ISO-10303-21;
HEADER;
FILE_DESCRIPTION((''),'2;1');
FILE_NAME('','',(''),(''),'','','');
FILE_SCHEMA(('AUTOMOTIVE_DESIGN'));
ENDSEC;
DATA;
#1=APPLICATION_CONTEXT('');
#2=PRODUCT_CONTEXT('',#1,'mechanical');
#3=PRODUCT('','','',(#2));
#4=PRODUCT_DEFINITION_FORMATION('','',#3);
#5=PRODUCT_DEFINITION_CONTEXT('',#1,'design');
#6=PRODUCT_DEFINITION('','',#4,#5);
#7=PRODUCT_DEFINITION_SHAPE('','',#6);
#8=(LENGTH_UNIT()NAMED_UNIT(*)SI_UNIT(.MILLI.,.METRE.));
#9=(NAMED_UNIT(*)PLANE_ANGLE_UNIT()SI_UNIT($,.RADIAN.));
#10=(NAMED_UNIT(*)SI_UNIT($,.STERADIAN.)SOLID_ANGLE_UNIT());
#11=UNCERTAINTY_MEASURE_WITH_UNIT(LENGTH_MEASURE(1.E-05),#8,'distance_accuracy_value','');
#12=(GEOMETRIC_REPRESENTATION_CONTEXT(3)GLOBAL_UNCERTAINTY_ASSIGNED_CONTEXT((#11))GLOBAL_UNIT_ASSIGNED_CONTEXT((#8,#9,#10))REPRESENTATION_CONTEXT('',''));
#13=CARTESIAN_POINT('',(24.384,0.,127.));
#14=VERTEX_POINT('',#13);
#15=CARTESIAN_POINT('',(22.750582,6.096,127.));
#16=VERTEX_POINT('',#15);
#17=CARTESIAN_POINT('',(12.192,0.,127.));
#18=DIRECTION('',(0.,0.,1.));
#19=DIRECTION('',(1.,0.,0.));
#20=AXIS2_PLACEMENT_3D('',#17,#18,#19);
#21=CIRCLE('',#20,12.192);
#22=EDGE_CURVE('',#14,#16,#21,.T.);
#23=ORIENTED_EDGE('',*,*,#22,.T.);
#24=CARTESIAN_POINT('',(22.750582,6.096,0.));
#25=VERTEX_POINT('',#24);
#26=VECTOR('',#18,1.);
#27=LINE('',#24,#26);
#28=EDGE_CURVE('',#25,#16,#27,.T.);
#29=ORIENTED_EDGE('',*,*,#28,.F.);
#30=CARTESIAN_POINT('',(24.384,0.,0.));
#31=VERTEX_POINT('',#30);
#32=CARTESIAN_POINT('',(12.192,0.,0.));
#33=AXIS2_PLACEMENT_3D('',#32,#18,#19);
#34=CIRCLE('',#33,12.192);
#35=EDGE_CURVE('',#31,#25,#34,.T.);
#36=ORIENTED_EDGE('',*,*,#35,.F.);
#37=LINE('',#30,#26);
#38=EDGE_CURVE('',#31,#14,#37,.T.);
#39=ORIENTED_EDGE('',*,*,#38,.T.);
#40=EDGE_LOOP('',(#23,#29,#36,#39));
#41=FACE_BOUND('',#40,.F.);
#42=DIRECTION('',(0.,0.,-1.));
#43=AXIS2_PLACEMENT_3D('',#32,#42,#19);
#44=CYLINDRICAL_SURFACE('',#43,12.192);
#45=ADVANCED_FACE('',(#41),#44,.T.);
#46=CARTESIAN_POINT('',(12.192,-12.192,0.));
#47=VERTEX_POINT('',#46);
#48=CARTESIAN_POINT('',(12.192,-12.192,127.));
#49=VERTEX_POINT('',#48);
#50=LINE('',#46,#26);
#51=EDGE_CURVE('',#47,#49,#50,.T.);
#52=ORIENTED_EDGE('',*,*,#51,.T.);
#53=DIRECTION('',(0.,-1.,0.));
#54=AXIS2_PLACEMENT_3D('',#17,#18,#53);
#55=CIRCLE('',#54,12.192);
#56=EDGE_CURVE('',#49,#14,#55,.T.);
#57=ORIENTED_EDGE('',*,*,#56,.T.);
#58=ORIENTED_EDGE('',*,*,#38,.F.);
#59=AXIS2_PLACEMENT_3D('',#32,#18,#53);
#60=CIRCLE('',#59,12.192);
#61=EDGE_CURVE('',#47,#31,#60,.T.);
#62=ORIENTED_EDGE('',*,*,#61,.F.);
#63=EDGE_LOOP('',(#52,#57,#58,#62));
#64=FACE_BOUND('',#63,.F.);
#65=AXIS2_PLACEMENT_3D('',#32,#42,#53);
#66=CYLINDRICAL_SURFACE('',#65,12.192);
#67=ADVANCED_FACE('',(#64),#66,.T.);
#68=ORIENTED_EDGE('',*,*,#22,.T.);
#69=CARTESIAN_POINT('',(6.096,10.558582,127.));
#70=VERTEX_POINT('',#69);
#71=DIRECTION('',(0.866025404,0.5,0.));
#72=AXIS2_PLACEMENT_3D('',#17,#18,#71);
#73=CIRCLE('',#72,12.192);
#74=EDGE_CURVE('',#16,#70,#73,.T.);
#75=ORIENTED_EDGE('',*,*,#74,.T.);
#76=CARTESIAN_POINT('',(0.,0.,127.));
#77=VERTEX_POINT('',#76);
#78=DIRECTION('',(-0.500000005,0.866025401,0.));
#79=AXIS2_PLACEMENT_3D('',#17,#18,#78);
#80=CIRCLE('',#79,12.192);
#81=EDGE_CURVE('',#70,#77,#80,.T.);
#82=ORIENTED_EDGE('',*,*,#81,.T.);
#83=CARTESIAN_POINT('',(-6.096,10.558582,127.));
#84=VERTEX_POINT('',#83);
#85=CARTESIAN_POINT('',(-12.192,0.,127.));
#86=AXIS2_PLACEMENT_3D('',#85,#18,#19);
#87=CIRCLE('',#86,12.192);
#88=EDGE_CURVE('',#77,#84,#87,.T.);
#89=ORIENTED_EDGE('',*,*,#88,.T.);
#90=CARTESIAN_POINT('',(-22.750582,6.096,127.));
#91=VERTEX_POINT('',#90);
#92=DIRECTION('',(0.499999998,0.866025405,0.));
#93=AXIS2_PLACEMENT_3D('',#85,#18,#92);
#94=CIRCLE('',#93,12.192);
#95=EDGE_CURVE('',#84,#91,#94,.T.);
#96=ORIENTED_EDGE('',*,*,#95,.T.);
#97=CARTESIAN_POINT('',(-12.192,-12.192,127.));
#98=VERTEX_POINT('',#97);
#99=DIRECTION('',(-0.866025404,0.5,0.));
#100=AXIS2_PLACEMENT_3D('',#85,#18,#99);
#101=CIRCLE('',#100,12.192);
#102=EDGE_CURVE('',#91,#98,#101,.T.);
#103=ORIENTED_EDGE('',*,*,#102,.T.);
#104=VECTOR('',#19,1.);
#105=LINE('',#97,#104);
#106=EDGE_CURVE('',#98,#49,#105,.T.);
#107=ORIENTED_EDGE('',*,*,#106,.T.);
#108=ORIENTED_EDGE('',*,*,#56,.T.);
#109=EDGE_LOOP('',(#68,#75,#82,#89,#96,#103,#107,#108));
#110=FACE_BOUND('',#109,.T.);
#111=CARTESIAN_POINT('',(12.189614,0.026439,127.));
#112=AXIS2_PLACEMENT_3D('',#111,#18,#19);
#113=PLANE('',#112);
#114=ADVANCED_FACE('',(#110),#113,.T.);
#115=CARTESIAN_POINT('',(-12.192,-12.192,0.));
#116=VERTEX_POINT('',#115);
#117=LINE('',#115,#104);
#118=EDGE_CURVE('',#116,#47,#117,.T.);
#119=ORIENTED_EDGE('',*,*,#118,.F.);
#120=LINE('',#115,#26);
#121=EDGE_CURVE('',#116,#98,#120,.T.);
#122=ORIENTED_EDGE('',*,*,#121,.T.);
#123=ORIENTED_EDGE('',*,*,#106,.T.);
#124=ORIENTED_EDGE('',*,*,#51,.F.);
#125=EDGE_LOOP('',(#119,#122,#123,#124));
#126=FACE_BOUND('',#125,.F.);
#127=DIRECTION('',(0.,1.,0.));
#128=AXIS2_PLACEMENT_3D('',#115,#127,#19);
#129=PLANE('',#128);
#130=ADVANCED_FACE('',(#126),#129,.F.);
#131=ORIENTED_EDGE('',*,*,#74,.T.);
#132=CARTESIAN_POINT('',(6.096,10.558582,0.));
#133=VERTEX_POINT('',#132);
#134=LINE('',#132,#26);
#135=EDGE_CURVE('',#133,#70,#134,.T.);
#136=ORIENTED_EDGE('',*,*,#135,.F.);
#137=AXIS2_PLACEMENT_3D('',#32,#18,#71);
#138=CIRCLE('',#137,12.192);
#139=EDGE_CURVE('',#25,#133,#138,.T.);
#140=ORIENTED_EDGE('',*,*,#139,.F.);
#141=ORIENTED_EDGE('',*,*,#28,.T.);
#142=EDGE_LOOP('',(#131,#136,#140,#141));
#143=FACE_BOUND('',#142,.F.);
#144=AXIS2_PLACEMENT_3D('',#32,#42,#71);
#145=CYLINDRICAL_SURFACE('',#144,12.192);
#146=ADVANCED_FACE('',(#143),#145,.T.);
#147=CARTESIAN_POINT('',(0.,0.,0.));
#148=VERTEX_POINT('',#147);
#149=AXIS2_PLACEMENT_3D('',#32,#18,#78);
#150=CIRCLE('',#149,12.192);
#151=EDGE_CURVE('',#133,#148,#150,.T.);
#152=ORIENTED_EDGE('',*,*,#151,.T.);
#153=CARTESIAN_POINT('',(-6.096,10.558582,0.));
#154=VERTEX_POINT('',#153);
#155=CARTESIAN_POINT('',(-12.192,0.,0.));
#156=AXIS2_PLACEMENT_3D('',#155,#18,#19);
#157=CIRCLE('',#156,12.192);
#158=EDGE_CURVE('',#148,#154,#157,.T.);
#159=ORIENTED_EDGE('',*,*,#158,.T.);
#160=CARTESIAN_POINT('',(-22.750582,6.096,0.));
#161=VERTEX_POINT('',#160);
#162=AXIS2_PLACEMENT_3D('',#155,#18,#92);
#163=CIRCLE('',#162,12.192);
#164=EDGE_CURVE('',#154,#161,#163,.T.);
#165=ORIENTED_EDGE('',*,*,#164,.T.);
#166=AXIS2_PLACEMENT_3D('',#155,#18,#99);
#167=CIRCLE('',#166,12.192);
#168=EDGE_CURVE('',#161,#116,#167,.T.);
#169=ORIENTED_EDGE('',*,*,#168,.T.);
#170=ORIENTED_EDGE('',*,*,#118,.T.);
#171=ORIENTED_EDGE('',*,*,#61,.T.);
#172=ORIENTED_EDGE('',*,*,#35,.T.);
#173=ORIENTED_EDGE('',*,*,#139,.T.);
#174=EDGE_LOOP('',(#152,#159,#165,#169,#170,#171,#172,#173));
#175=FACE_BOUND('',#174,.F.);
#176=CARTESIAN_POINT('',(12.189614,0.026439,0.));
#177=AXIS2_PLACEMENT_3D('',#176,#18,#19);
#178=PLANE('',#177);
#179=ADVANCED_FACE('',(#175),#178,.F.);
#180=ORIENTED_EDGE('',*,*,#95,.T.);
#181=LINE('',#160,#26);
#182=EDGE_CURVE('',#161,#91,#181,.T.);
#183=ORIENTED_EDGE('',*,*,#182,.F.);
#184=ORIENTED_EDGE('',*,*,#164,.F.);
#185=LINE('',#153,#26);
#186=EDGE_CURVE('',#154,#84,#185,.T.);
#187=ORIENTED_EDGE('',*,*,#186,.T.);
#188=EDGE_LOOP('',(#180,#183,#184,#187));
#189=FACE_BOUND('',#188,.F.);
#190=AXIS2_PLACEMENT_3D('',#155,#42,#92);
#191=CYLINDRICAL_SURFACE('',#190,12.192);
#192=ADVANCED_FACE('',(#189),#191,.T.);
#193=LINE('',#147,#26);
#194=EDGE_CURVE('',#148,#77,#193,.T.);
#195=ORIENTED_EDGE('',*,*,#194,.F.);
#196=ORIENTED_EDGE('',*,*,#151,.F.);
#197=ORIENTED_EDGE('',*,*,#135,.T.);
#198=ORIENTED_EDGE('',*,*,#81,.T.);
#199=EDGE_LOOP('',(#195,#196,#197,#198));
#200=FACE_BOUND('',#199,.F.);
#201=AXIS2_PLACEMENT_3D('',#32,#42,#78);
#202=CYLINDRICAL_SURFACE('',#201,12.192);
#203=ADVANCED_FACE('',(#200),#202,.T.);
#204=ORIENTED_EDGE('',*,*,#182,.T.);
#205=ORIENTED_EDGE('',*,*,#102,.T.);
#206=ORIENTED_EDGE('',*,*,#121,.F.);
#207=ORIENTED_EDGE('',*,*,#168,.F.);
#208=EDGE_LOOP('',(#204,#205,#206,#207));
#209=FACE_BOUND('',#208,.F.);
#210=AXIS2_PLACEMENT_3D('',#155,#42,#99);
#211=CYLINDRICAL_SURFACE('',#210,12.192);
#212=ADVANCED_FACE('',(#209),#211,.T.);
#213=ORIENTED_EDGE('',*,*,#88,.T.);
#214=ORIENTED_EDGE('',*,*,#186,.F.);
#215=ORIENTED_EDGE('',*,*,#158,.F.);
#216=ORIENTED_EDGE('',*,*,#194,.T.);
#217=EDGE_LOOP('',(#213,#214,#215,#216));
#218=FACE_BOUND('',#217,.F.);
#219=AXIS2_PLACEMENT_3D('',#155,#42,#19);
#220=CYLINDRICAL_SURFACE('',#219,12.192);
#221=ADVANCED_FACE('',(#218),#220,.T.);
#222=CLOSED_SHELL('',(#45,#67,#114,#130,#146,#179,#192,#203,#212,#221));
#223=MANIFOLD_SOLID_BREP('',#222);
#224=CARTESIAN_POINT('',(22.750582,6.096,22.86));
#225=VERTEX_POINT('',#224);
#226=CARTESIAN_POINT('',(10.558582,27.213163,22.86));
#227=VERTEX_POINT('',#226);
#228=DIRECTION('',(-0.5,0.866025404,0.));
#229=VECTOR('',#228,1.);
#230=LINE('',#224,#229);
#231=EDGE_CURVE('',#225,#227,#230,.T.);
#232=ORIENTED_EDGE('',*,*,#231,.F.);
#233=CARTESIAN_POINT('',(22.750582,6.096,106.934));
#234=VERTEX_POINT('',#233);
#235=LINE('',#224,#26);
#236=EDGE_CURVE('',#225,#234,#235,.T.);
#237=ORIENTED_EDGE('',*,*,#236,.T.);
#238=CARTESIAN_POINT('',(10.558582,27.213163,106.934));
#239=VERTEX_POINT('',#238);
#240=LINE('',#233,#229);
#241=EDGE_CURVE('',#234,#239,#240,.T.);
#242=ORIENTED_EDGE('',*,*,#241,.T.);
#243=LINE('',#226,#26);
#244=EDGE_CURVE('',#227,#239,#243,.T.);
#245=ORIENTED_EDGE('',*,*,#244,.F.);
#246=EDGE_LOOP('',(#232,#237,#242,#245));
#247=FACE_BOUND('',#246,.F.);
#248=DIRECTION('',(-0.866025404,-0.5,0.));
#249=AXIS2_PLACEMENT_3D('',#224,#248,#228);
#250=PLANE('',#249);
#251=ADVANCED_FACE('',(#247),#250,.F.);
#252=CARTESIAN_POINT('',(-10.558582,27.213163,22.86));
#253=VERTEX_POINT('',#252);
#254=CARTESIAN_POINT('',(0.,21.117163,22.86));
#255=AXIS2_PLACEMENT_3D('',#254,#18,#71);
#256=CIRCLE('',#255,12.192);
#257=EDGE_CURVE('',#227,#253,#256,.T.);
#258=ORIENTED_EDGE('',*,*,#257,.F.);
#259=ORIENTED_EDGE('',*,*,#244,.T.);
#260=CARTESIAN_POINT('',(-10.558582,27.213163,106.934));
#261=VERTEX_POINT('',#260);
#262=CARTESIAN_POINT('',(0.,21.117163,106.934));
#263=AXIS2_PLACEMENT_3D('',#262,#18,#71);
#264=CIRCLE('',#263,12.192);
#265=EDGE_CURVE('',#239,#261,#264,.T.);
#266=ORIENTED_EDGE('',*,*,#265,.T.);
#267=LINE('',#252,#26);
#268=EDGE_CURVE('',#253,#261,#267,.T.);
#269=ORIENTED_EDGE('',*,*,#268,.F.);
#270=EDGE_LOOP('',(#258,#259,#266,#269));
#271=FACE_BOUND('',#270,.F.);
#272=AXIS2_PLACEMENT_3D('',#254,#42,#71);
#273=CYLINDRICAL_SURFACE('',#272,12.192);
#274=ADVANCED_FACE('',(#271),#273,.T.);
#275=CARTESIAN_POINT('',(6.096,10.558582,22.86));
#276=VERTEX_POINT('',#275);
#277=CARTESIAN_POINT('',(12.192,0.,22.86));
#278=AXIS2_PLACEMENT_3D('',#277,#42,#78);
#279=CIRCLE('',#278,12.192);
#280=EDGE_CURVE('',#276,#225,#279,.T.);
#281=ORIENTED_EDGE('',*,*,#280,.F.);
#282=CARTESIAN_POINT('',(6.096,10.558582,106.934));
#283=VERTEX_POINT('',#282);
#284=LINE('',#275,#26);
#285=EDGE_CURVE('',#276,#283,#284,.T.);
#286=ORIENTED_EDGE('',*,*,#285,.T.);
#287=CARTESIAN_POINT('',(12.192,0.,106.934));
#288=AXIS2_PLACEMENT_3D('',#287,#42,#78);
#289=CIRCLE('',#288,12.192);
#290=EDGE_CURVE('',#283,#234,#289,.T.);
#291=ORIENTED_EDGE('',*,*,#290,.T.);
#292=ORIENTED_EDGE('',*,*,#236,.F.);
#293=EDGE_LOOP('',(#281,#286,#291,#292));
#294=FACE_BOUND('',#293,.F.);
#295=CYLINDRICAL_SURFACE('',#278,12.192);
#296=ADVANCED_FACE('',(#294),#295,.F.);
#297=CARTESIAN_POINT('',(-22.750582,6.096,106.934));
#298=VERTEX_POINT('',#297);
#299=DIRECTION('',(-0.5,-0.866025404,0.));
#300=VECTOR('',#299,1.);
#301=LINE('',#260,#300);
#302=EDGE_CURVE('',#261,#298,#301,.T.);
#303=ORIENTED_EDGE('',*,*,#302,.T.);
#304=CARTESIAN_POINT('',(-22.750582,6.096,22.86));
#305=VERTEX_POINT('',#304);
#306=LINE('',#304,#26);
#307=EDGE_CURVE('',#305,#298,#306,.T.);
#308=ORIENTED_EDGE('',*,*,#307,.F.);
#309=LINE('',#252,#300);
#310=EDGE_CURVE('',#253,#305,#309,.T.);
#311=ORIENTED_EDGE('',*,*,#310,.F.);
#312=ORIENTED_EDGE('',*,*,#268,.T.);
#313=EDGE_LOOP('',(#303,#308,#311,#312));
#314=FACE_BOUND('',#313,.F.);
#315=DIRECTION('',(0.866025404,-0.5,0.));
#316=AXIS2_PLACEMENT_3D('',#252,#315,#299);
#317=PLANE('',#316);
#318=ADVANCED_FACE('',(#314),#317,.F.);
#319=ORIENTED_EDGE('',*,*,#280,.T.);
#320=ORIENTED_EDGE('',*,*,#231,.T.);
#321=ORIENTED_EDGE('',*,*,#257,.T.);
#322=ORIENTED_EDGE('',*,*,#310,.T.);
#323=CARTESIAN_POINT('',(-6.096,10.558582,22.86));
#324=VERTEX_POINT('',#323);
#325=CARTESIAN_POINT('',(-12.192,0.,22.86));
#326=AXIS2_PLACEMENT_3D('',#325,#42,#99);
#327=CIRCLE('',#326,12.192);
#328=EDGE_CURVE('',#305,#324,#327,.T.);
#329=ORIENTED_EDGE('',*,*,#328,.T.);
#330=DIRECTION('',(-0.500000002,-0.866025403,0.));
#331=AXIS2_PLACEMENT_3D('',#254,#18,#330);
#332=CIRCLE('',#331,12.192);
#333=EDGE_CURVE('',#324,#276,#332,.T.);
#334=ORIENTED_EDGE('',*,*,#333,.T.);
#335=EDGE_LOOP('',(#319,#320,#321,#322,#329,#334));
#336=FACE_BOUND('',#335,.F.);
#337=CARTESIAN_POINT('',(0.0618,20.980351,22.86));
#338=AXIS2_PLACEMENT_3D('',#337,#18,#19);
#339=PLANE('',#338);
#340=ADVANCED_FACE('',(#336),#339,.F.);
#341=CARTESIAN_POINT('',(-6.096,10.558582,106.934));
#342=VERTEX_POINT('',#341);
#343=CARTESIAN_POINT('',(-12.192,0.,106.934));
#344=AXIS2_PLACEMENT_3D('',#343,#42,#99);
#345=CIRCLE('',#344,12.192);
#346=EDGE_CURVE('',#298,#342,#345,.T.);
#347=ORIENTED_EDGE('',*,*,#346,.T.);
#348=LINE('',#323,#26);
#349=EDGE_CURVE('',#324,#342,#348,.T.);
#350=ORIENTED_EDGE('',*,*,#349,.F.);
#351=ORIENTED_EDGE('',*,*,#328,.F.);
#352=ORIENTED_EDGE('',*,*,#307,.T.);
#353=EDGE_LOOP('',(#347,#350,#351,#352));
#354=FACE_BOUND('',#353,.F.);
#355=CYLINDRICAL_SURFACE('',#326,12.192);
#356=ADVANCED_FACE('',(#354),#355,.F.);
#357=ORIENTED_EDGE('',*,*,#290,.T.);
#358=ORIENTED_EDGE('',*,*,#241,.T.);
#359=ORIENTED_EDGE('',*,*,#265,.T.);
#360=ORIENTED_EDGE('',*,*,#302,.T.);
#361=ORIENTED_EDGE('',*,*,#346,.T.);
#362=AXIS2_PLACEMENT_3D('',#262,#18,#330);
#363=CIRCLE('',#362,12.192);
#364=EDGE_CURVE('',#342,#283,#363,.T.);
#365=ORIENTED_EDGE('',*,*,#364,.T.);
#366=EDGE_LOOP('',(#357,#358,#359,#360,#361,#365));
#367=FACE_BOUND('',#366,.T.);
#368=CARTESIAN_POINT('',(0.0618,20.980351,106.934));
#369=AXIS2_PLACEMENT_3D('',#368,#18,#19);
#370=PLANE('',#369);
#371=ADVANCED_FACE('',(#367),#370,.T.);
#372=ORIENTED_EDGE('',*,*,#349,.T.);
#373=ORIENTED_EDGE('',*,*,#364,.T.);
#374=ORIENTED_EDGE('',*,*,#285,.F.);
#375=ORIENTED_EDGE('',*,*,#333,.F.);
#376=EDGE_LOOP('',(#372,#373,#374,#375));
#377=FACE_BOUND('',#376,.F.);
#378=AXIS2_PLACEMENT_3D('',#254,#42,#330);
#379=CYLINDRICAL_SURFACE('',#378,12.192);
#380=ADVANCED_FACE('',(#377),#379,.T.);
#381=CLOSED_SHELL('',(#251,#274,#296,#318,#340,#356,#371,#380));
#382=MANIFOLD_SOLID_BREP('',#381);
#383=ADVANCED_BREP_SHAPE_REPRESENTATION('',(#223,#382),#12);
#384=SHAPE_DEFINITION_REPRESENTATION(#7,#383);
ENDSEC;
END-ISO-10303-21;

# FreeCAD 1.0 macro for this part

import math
import FreeCAD as App
import Part
import Sketcher
from FreeCAD import Vector
Q = App.Units.Quantity

doc = App.newDocument("Part")
body = doc.addObject("PartDesign::Body", "Body")

# Sketch on XY plane
sketch1 = body.newObject("Sketcher::SketchObject", "Sketch")
sketch1.AttachmentSupport = (doc.getObject("XY_Plane"), [""])
sketch1.MapMode = "FlatFace"
sketch1.addGeometry(Part.ArcOfCircle(Part.Circle(Vector(12.192, 0, 0), Vector(0, 0, 1), 12.192), math.radians(120), math.radians(180)), False)
sketch1.addGeometry(Part.ArcOfCircle(Part.Circle(Vector(-12.192, 0, 0), Vector(0, 0, 1), 12.192), math.radians(0), math.radians(60)), False)
sketch1.addGeometry(Part.ArcOfCircle(Part.Circle(Vector(-12.192, 0, 0), Vector(0, 0, 1), 12.192), math.radians(60), math.radians(150)), False)
sketch1.addGeometry(Part.ArcOfCircle(Part.Circle(Vector(-12.192, 0, 0), Vector(0, 0, 1), 12.192), math.radians(150), math.radians(270)), False)
sketch1.addGeometry(Part.LineSegment(Vector(-12.192, -12.192, 0), Vector(12.192, -12.192, 0)), False)
sketch1.addGeometry(Part.ArcOfCircle(Part.Circle(Vector(12.192, 0, 0), Vector(0, 0, 1), 12.192), math.radians(-90), math.radians(0)), False)
sketch1.addGeometry(Part.ArcOfCircle(Part.Circle(Vector(12.192, 0, 0), Vector(0, 0, 1), 12.192), math.radians(0), math.radians(30)), False)
sketch1.addGeometry(Part.ArcOfCircle(Part.Circle(Vector(12.192, 0, 0), Vector(0, 0, 1), 12.192), math.radians(30), math.radians(120)), False)
sketch1.addConstraint(Sketcher.Constraint("Tangent", 0, 2, 1, 1))
sketch1.addConstraint(Sketcher.Constraint("Tangent", 1, 2, 2, 1))
sketch1.addConstraint(Sketcher.Constraint("Tangent", 2, 2, 3, 1))
sketch1.addConstraint(Sketcher.Constraint("Tangent", 3, 2, 4, 1))
sketch1.addConstraint(Sketcher.Constraint("Tangent", 4, 2, 5, 1))
sketch1.addConstraint(Sketcher.Constraint("Tangent", 5, 2, 6, 1))
sketch1.addConstraint(Sketcher.Constraint("Tangent", 6, 2, 7, 1))
sketch1.addConstraint(Sketcher.Constraint("Tangent", 7, 2, 0, 1))
sketch1.addConstraint(Sketcher.Constraint("Horizontal", 4))
sketch1.addConstraint(Sketcher.Constraint("Coincident", 0, 2, -1, 1))
sketch1.addConstraint(Sketcher.Constraint("Coincident", 3, 3, 1, 3))
sketch1.addConstraint(Sketcher.Constraint("Coincident", 5, 3, 0, 3))
sketch1.addConstraint(Sketcher.Constraint("Equal", 0, 1))
sketch1.addConstraint(Sketcher.Constraint("Equal", 3, 5))
sketch1.addConstraint(Sketcher.Constraint("PointOnObject", 5, 2, -1))
sketch1.addConstraint(Sketcher.Constraint("Horizontal", 2, 2, 6, 2))
sketch1.addConstraint(Sketcher.Constraint("Horizontal", 1, 2, 7, 2))
sketch1.addConstraint(Sketcher.Constraint("Radius", 0, Q("0.48 in")))
sketch1.addConstraint(Sketcher.Constraint("DistanceX", 1, 2, -1, 1, Q("0.24 in")))
sketch1.addConstraint(Sketcher.Constraint("DistanceY", -1, 1, 2, 2, Q("0.24 in")))
pad1 = body.newObject("PartDesign::Pad", "Pad")
pad1.Profile = sketch1
pad1.Length = Q("5 in")
body2 = doc.addObject("PartDesign::Body", "Body001")

# Sketch on XY plane
sketch2 = body2.newObject("Sketcher::SketchObject", "Sketch001")
sketch2.AttachmentSupport = (doc.getObject("XY_Plane001"), [""])
sketch2.MapMode = "FlatFace"
sketch2.AttachmentOffset = App.Placement(Vector(0, 0, 0.9 * 25.4), App.Rotation())
sketch2.addGeometry(Part.ArcOfCircle(Part.Circle(Vector(0, 21.117163, 0), Vector(0, 0, 1), 12.192), math.radians(-120), math.radians(-60)), False)
sketch2.addGeometry(Part.ArcOfCircle(Part.Circle(Vector(12.192, 0, 0), Vector(0, 0, 1), 12.192), math.radians(30), math.radians(120)), False)
sketch2.addGeometry(Part.LineSegment(Vector(22.750582, 6.096, 0), Vector(10.558582, 27.213163, 0)), False)
sketch2.addGeometry(Part.ArcOfCircle(Part.Circle(Vector(0, 21.117163, 0), Vector(0, 0, 1), 12.192), math.radians(30), math.radians(150)), False)
sketch2.addGeometry(Part.LineSegment(Vector(-10.558582, 27.213163, 0), Vector(-22.750582, 6.096, 0)), False)
sketch2.addGeometry(Part.ArcOfCircle(Part.Circle(Vector(-12.192, 0, 0), Vector(0, 0, 1), 12.192), math.radians(60), math.radians(150)), False)
sketch2.addConstraint(Sketcher.Constraint("Tangent", 0, 2, 1, 2))
sketch2.addConstraint(Sketcher.Constraint("Tangent", 1, 1, 2, 1))
sketch2.addConstraint(Sketcher.Constraint("Tangent", 2, 2, 3, 1))
sketch2.addConstraint(Sketcher.Constraint("Tangent", 3, 2, 4, 1))
sketch2.addConstraint(Sketcher.Constraint("Tangent", 4, 2, 5, 2))
sketch2.addConstraint(Sketcher.Constraint("Tangent", 5, 1, 0, 1))
sketch2.addConstraint(Sketcher.Constraint("Coincident", 3, 3, 0, 3))
sketch2.addConstraint(Sketcher.Constraint("Equal", 0, 1))
sketch2.addConstraint(Sketcher.Constraint("Equal", 1, 3))
sketch2.addConstraint(Sketcher.Constraint("Equal", 3, 5))
sketch2.addConstraint(Sketcher.Constraint("Symmetric", 1, 3, 5, 3, -1, 1))
sketch2.addConstraint(Sketcher.Constraint("PointOnObject", 0, 3, -2))
sketch2.addConstraint(Sketcher.Constraint("Radius", 0, Q("0.48 in")))
sketch2.addConstraint(Sketcher.Constraint("Angle", 2, Q("120 deg")))
pad2 = body2.newObject("PartDesign::Pad", "Pad001")
pad2.Profile = sketch2
pad2.Length = Q("3.31 in")

doc.recompute()
